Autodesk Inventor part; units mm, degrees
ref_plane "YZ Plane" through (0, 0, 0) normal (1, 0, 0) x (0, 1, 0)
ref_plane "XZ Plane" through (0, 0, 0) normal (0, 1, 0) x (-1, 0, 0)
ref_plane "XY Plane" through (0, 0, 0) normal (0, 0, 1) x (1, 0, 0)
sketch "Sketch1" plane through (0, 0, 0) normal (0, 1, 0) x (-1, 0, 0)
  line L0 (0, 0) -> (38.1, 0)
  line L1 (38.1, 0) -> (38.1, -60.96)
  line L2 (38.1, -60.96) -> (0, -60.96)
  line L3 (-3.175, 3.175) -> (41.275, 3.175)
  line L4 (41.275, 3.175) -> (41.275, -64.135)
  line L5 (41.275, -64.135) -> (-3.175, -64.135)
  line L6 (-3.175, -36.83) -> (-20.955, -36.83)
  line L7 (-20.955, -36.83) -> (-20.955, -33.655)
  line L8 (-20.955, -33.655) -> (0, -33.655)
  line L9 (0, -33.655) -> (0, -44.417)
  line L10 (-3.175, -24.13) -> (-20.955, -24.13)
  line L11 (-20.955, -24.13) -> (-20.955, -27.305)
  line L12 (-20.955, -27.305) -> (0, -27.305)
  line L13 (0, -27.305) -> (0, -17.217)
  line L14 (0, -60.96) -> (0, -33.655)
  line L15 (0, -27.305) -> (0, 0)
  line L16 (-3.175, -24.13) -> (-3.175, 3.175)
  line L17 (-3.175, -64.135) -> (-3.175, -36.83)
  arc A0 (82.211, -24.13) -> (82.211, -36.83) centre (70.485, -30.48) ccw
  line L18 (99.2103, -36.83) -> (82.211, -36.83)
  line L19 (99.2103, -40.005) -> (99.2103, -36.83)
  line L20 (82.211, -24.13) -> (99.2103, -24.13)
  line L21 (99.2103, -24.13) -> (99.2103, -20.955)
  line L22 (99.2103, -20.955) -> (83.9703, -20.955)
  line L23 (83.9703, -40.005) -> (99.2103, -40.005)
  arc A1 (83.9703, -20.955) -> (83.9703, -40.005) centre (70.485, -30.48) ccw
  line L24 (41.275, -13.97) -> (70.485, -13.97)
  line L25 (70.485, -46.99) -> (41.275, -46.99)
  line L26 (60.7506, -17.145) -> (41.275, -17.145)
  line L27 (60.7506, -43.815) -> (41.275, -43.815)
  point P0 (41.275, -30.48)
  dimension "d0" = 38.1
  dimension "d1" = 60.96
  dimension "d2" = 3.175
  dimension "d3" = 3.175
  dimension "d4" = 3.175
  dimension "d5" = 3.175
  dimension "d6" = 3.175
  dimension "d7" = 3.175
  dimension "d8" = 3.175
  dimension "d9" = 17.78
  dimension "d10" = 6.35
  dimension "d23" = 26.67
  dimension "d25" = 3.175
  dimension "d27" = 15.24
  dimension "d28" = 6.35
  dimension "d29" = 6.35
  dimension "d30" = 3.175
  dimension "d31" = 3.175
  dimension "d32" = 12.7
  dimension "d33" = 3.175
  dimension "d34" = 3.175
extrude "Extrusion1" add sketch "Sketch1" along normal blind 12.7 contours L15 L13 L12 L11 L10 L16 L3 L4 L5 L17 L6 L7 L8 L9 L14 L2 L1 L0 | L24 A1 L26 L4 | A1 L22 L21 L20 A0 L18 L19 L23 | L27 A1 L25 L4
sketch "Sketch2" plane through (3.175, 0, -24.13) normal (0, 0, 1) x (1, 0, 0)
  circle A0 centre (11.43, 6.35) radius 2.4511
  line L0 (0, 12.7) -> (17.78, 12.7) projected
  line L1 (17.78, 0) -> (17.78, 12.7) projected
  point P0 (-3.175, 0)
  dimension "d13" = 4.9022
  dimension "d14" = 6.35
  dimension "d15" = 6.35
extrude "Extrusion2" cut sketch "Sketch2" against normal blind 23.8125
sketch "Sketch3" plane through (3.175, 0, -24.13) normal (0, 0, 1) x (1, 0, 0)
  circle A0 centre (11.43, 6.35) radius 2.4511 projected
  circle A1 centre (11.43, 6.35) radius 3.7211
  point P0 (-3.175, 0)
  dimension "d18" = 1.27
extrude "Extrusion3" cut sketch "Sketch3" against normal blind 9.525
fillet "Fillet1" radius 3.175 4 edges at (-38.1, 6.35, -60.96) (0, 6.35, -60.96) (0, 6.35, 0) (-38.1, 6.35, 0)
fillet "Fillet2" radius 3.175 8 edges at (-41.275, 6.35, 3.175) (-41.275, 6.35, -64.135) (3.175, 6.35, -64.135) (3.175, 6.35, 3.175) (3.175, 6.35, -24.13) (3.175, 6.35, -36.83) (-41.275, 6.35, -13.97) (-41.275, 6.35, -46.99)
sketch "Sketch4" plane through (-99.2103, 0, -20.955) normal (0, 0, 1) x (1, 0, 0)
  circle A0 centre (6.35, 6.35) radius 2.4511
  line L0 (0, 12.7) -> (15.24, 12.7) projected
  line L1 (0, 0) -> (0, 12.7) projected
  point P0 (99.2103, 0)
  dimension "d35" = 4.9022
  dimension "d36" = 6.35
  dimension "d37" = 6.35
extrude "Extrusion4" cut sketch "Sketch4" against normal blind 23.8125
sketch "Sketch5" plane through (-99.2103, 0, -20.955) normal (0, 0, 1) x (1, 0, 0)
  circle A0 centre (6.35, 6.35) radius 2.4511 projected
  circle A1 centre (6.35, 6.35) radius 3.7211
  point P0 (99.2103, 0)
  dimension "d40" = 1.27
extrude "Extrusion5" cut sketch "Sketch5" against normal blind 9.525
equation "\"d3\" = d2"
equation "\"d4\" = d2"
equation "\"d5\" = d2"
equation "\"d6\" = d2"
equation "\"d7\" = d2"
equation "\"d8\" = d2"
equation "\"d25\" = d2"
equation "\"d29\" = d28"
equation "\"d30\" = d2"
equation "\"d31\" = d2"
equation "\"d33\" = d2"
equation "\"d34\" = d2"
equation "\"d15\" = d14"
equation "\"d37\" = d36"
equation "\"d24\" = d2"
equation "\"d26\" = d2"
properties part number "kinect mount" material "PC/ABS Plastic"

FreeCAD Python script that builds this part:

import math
import FreeCAD as App
import Part
import Sketcher
Q = App.Units.Quantity


def edges_at(feature, points):
    """Names of the edges that pass closest to the given points."""
    edges = feature.Shape.Edges
    near = lambda p: min(range(len(edges)), key=lambda i: edges[i].distToShape(Part.Vertex(*p))[0])
    return sorted({f"Edge{near(p) + 1}" for p in points})

doc = App.newDocument("Part")
body = doc.addObject("PartDesign::Body", "Body")

sketch1 = body.newObject("Sketcher::SketchObject", "Sketch")
sketch1.AttachmentSupport = (doc.getObject("XZ_Plane"), [""])
sketch1.MapMode = "FlatFace"
sketch1.addGeometry([
    Part.LineSegment(App.Vector(0, 0, 0), App.Vector(-38.1, 0, 0)),
    Part.LineSegment(App.Vector(-38.1, 0, 0), App.Vector(-38.1, -61, 0)),
    Part.LineSegment(App.Vector(-38.1, -61, 0), App.Vector(0, -61, 0)),
    Part.LineSegment(App.Vector(0, -61, 0), App.Vector(0, -33.7, 0)),
    Part.LineSegment(App.Vector(0, -33.7, 0), App.Vector(21, -33.7, 0)),
    Part.LineSegment(App.Vector(21, -33.7, 0), App.Vector(21, -36.8, 0)),
    Part.LineSegment(App.Vector(21, -36.8, 0), App.Vector(3.2, -36.8, 0)),
    Part.LineSegment(App.Vector(3.2, -36.8, 0), App.Vector(3.2, -64.1, 0)),
    Part.LineSegment(App.Vector(3.2, -64.1, 0), App.Vector(-41.3, -64.1, 0)),
    Part.LineSegment(App.Vector(-41.3, -64.1, 0), App.Vector(-41.3, -47, 0)),
    Part.LineSegment(App.Vector(-41.3, -47, 0), App.Vector(-70.5, -47, 0)),
    Part.ArcOfCircle(Part.Circle(App.Vector(-70.5, -30.5, 0), App.Vector(0, 0, 1), 16.5), math.radians(-145), math.radians(-90)),
    Part.LineSegment(App.Vector(-84, -40, 0), App.Vector(-99.2, -40, 0)),
    Part.LineSegment(App.Vector(-99.2, -40, 0), App.Vector(-99.2, -36.8, 0)),
    Part.LineSegment(App.Vector(-99.2, -36.8, 0), App.Vector(-82.2, -36.8, 0)),
    Part.ArcOfCircle(Part.Circle(App.Vector(-70.5, -30.5, 0), App.Vector(0, 0, 1), 13.3), math.radians(-152), math.radians(152)),
    Part.LineSegment(App.Vector(-82.2, -24.1, 0), App.Vector(-99.2, -24.1, 0)),
    Part.LineSegment(App.Vector(-99.2, -24.1, 0), App.Vector(-99.2, -21, 0)),
    Part.LineSegment(App.Vector(-99.2, -21, 0), App.Vector(-84, -21, 0)),
    Part.ArcOfCircle(Part.Circle(App.Vector(-70.5, -30.5, 0), App.Vector(0, 0, 1), 16.5), math.radians(90), math.radians(145)),
    Part.LineSegment(App.Vector(-70.5, -14, 0), App.Vector(-41.3, -14, 0)),
    Part.LineSegment(App.Vector(-41.3, -14, 0), App.Vector(-41.3, 3.2, 0)),
    Part.LineSegment(App.Vector(-41.3, 3.2, 0), App.Vector(3.2, 3.2, 0)),
    Part.LineSegment(App.Vector(3.2, 3.2, 0), App.Vector(3.2, -24.1, 0)),
    Part.LineSegment(App.Vector(3.2, -24.1, 0), App.Vector(21, -24.1, 0)),
    Part.LineSegment(App.Vector(21, -24.1, 0), App.Vector(21, -27.3, 0)),
    Part.LineSegment(App.Vector(21, -27.3, 0), App.Vector(0, -27.3, 0)),
    Part.LineSegment(App.Vector(0, -27.3, 0), App.Vector(0, 0, 0)),
    Part.LineSegment(App.Vector(-41.3, -43.8, 0), App.Vector(-41.3, -17.1, 0)),
    Part.LineSegment(App.Vector(-41.3, -17.1, 0), App.Vector(-60.8, -17.1, 0)),
    Part.ArcOfCircle(Part.Circle(App.Vector(-70.5, -30.5, 0), App.Vector(0, 0, 1), 16.5), math.radians(-54), math.radians(54)),
    Part.LineSegment(App.Vector(-60.8, -43.8, 0), App.Vector(-41.3, -43.8, 0)),
], False)
sketch1.addConstraint([
    Sketcher.Constraint("Coincident", 0, 2, 1, 1),
    Sketcher.Constraint("Coincident", 1, 2, 2, 1),
    Sketcher.Constraint("Coincident", 2, 2, 3, 1),
    Sketcher.Constraint("Coincident", 3, 2, 4, 1),
    Sketcher.Constraint("Coincident", 4, 2, 5, 1),
    Sketcher.Constraint("Coincident", 5, 2, 6, 1),
    Sketcher.Constraint("Coincident", 6, 2, 7, 1),
    Sketcher.Constraint("Coincident", 7, 2, 8, 1),
    Sketcher.Constraint("Coincident", 8, 2, 9, 1),
    Sketcher.Constraint("Coincident", 9, 2, 10, 1),
    Sketcher.Constraint("Tangent", 10, 2, 11, 2),
    Sketcher.Constraint("Coincident", 11, 1, 12, 1),
    Sketcher.Constraint("Coincident", 12, 2, 13, 1),
    Sketcher.Constraint("Coincident", 13, 2, 14, 1),
    Sketcher.Constraint("Coincident", 14, 2, 15, 1),
    Sketcher.Constraint("Coincident", 15, 2, 16, 1),
    Sketcher.Constraint("Coincident", 16, 2, 17, 1),
    Sketcher.Constraint("Coincident", 17, 2, 18, 1),
    Sketcher.Constraint("Coincident", 18, 2, 19, 2),
    Sketcher.Constraint("Tangent", 19, 1, 20, 1),
    Sketcher.Constraint("Coincident", 20, 2, 21, 1),
    Sketcher.Constraint("Coincident", 21, 2, 22, 1),
    Sketcher.Constraint("Coincident", 22, 2, 23, 1),
    Sketcher.Constraint("Coincident", 23, 2, 24, 1),
    Sketcher.Constraint("Coincident", 24, 2, 25, 1),
    Sketcher.Constraint("Coincident", 25, 2, 26, 1),
    Sketcher.Constraint("Coincident", 26, 2, 27, 1),
    Sketcher.Constraint("Coincident", 27, 2, 0, 1),
    Sketcher.Constraint("Coincident", 28, 2, 29, 1),
    Sketcher.Constraint("Coincident", 29, 2, 30, 2),
    Sketcher.Constraint("Coincident", 30, 1, 31, 1),
    Sketcher.Constraint("Coincident", 31, 2, 28, 1),
    Sketcher.Constraint("Horizontal", 0),
    Sketcher.Constraint("Vertical", 1),
    Sketcher.Constraint("Horizontal", 2),
    Sketcher.Constraint("Vertical", 3),
    Sketcher.Constraint("Horizontal", 4),
    Sketcher.Constraint("Vertical", 5),
    Sketcher.Constraint("Horizontal", 6),
    Sketcher.Constraint("Vertical", 7),
    Sketcher.Constraint("Horizontal", 8),
    Sketcher.Constraint("Vertical", 9),
    Sketcher.Constraint("Horizontal", 10),
    Sketcher.Constraint("Horizontal", 12),
    Sketcher.Constraint("Vertical", 13),
    Sketcher.Constraint("Horizontal", 14),
    Sketcher.Constraint("Horizontal", 16),
    Sketcher.Constraint("Vertical", 17),
    Sketcher.Constraint("Horizontal", 18),
    Sketcher.Constraint("Horizontal", 20),
    Sketcher.Constraint("Vertical", 21),
    Sketcher.Constraint("Horizontal", 22),
    Sketcher.Constraint("Vertical", 23),
    Sketcher.Constraint("Horizontal", 24),
    Sketcher.Constraint("Vertical", 25),
    Sketcher.Constraint("Horizontal", 26),
    Sketcher.Constraint("Vertical", 27),
    Sketcher.Constraint("Vertical", 28),
    Sketcher.Constraint("Horizontal", 29),
    Sketcher.Constraint("Horizontal", 31),
    Sketcher.Constraint("Coincident", 27, 2, -1, 1),
    Sketcher.Constraint("Coincident", 15, 3, 11, 3),
    Sketcher.Constraint("Coincident", 19, 3, 11, 3),
    Sketcher.Constraint("Coincident", 30, 3, 11, 3),
    Sketcher.Constraint("Equal", 11, 19),
    Sketcher.Constraint("Equal", 19, 30),
    Sketcher.Constraint("PointOnObject", 2, 2, -2),
    Sketcher.Constraint("Horizontal", 6, 2, 13, 2),
    Sketcher.Constraint("Horizontal", 16, 2, 23, 2),
    Sketcher.Constraint("Vertical", 14, 2, 15, 2),
    Sketcher.Constraint("Vertical", 13, 2, 16, 2),
    Sketcher.Constraint("Vertical", 11, 1, 18, 2),
    Sketcher.Constraint("Vertical", 9, 2, 20, 2),
    Sketcher.Constraint("Vertical", 7, 2, 22, 2),
    Sketcher.Constraint("Vertical", 5, 2, 24, 2),
    Sketcher.Constraint("Vertical", 21, 2, 28, 2),
    Sketcher.Constraint("Vertical", 29, 2, 30, 1),
    Sketcher.Constraint("Equal", 3, 7),
    Sketcher.Constraint("Equal", 5, 13),
    Sketcher.Constraint("Equal", 9, 21),
    Sketcher.Constraint("Equal", 17, 25),
    Sketcher.Constraint("Equal", 23, 27),
    Sketcher.Constraint("DistanceX", 0, 2, 0, 1, Q("1.5 in")),
    Sketcher.Constraint("DistanceX", 6, 2, 6, 1, Q("0.7 in")),
    Sketcher.Constraint("DistanceX", 12, 2, 12, 1, Q("0.6 in")),
    Sketcher.Constraint("DistanceY", 1, 2, 1, 1, Q("2.4 in")),
    Sketcher.Constraint("Radius", 15, Q("0.525 in")),
    Sketcher.Constraint("DistanceY", 28, 1, 28, 2, Q("1.05 in")),
    Sketcher.Constraint("DistanceY", 14, 2, 15, 2, Q("0.5 in")),
    Sketcher.Constraint("DistanceY", 5, 2, 5, 1, Q("0.125 in")),
    Sketcher.Constraint("Radius", 11, Q("0.65 in")),
    Sketcher.Constraint("DistanceX", -1, 1, 6, 2, Q("0.125 in")),
    Sketcher.Constraint("DistanceX", 8, 2, 1, 2, Q("0.125 in")),
    Sketcher.Constraint("DistanceX", 10, 2, 10, 1, Q("1.15 in")),
])
pad1 = body.newObject("PartDesign::Pad", "Pad")
pad1.Profile = sketch1
pad1.Length = Q("0.5 in")
pad1.Reversed = True

sketch2 = body.newObject("Sketcher::SketchObject", "Sketch001")
sketch2.AttachmentSupport = (doc.getObject("XY_Plane"), [""])
sketch2.MapMode = "FlatFace"
sketch2.AttachmentOffset = App.Placement(App.Vector(0, 0, -0.95 * 25.4), App.Rotation())
sketch2.addGeometry(Part.Circle(App.Vector(14.6, 6.3, 0), App.Vector(0, 0, 1), 2.5), False)
sketch2.addConstraint([
    Sketcher.Constraint("Diameter", 0, Q("0.193 in")),
    Sketcher.Constraint("DistanceY", -1, 1, 0, 3, Q("0.25 in")),
    Sketcher.Constraint("DistanceX", -1, 1, 0, 3, Q("0.575 in")),
])
pocket1 = body.newObject("PartDesign::Pocket", "Pocket")
pocket1.Profile = sketch2
pocket1.Length = Q("0.9375 in")

sketch3 = body.newObject("Sketcher::SketchObject", "Sketch002")
sketch3.AttachmentSupport = (doc.getObject("XY_Plane"), [""])
sketch3.MapMode = "FlatFace"
sketch3.AttachmentOffset = App.Placement(App.Vector(0, 0, -0.95 * 25.4), App.Rotation())
sketch3.addGeometry([
    Part.Circle(App.Vector(14.6, 6.3, 0), App.Vector(0, 0, 1), 3.7),
    Part.Circle(App.Vector(14.6, 6.3, 0), App.Vector(0, 0, 1), 2.5),
], False)
sketch3.addConstraint([
    Sketcher.Constraint("Coincident", 1, 3, 0, 3),
    Sketcher.Constraint("Diameter", 0, Q("0.293 in")),
    Sketcher.Constraint("Diameter", 1, Q("0.193 in")),
    Sketcher.Constraint("DistanceY", -1, 1, 0, 3, Q("0.25 in")),
    Sketcher.Constraint("DistanceX", -1, 1, 0, 3, Q("0.575 in")),
])
pocket2 = body.newObject("PartDesign::Pocket", "Pocket001")
pocket2.Profile = sketch3
pocket2.Length = Q("0.375 in")
doc.recompute()

fillet = body.newObject("PartDesign::Fillet", "Fillet")
fillet.Base = (pocket2, edges_at(pocket2, [
    (-38.1, 6.35, -60.96),
    (0, 6.35, -60.96),
    (0, 6.35, 0),
    (-38.1, 6.35, 0),
]))
fillet.Radius = Q("0.125 in")
doc.recompute()

fillet2 = body.newObject("PartDesign::Fillet", "Fillet001")
fillet2.Base = (fillet, edges_at(fillet, [
    (-41.275, 6.35, 3.175),
    (-41.275, 6.35, -64.135),
    (3.175, 6.35, -64.135),
    (3.175, 6.35, 3.175),
    (3.175, 6.35, -24.13),
    (3.175, 6.35, -36.83),
    (-41.275, 6.35, -13.97),
    (-41.275, 6.35, -46.99),
]))
fillet2.Radius = Q("0.125 in")

sketch4 = body.newObject("Sketcher::SketchObject", "Sketch003")
sketch4.AttachmentSupport = (doc.getObject("XY_Plane"), [""])
sketch4.MapMode = "FlatFace"
sketch4.AttachmentOffset = App.Placement(App.Vector(0, 0, -0.825 * 25.4), App.Rotation())
sketch4.addGeometry(Part.Circle(App.Vector(-92.9, 6.3, 0), App.Vector(0, 0, 1), 2.5), False)
sketch4.addConstraint([
    Sketcher.Constraint("Diameter", 0, Q("0.193 in")),
    Sketcher.Constraint("DistanceY", -1, 1, 0, 3, Q("0.25 in")),
    Sketcher.Constraint("DistanceX", 0, 3, -1, 1, 92.8603),
])
pocket3 = body.newObject("PartDesign::Pocket", "Pocket002")
pocket3.Profile = sketch4
pocket3.Length = Q("0.9375 in")

sketch5 = body.newObject("Sketcher::SketchObject", "Sketch004")
sketch5.AttachmentSupport = (doc.getObject("XY_Plane"), [""])
sketch5.MapMode = "FlatFace"
sketch5.AttachmentOffset = App.Placement(App.Vector(0, 0, -0.825 * 25.4), App.Rotation())
sketch5.addGeometry([
    Part.Circle(App.Vector(-92.9, 6.3, 0), App.Vector(0, 0, 1), 3.7),
    Part.Circle(App.Vector(-92.9, 6.3, 0), App.Vector(0, 0, 1), 2.5),
], False)
sketch5.addConstraint([
    Sketcher.Constraint("Coincident", 1, 3, 0, 3),
    Sketcher.Constraint("Diameter", 0, Q("0.293 in")),
    Sketcher.Constraint("Diameter", 1, Q("0.193 in")),
    Sketcher.Constraint("DistanceY", -1, 1, 0, 3, Q("0.25 in")),
    Sketcher.Constraint("DistanceX", 0, 3, -1, 1, 92.8603),
])
pocket4 = body.newObject("PartDesign::Pocket", "Pocket003")
pocket4.Profile = sketch5
pocket4.Length = Q("0.375 in")

doc.recompute()
